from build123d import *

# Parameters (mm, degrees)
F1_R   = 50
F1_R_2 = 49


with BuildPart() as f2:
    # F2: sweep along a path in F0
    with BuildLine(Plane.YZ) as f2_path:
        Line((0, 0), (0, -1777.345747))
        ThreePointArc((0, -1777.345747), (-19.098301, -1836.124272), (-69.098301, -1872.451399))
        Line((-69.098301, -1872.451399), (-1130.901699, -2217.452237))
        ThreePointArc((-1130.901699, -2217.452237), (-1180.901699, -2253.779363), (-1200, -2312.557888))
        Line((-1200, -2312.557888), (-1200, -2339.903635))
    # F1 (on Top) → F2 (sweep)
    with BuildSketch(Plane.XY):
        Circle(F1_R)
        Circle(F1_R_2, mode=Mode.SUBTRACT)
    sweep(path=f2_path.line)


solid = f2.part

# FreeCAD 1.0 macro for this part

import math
import FreeCAD as App
import Part
import Sketcher
Q = App.Units.Quantity

doc = App.newDocument("Part")
body = doc.addObject("PartDesign::Body", "Body")

# Sketch on XY plane
sketch1 = body.newObject("Sketcher::SketchObject", "Sketch")
sketch1.AttachmentSupport = (doc.getObject("XY_Plane"), [""])
sketch1.MapMode = "FlatFace"
sketch1.addGeometry([
    Part.Circle(App.Vector(0, 0, 0), App.Vector(0, 0, 1), 50),
    Part.Circle(App.Vector(0, 0, 0), App.Vector(0, 0, 1), 49),
], False)
sketch1.addConstraint([
    Sketcher.Constraint("Coincident", 0, 3, -1, 1),
    Sketcher.Constraint("Coincident", 1, 3, -1, 1),
    Sketcher.Constraint("Diameter", 0, 100.0),
    Sketcher.Constraint("Diameter", 1, 98.0),
])

# Sketch on YZ plane
sketch2 = body.newObject("Sketcher::SketchObject", "Sketch001")
sketch2.AttachmentSupport = (doc.getObject("YZ_Plane"), [""])
sketch2.MapMode = "FlatFace"
sketch2.addGeometry([
    Part.LineSegment(App.Vector(0, 0, 0), App.Vector(0, -1777.345747, 0)),  # 0
    Part.ArcOfCircle(Part.Circle(App.Vector(-100.000003, -1777.345745, 0), App.Vector(0, 0, 1), 100.000003), math.radians(-71.999999), math.radians(-0.000001)),  # 1
    Part.LineSegment(App.Vector(-69.098301, -1872.451399, 0), App.Vector(-1130.901699, -2217.452237, 0)),  # 2
    Part.ArcOfCircle(Part.Circle(App.Vector(-1100, -2312.557889, 0), App.Vector(0, 0, 1), 100), math.radians(108), math.radians(179.999999)),  # 3
    Part.LineSegment(App.Vector(-1200, -2312.557888, 0), App.Vector(-1200, -2339.903635, 0)),  # 4
], False)
sketch2.addConstraint([
    Sketcher.Constraint("Tangent", 0, 2, 1, 2),
    Sketcher.Constraint("Tangent", 1, 1, 2, 1),
    Sketcher.Constraint("Tangent", 2, 2, 3, 1),
    Sketcher.Constraint("Tangent", 3, 2, 4, 1),
    Sketcher.Constraint("Vertical", 0),
    Sketcher.Constraint("Vertical", 4),
    Sketcher.Constraint("Coincident", 0, 1, -1, 1),
    Sketcher.Constraint("Radius", 3, 100.0),
    Sketcher.Constraint("Angle", 2, Q("-162 deg")),
    Sketcher.Constraint("DistanceX", 3, 3, -1, 1, 1100.0),
    Sketcher.Constraint("Radius", 1, 100.000003),
    Sketcher.Constraint("DistanceY", 1, 1, -1, 1, 1872.451399),
    Sketcher.Constraint("DistanceY", 4, 2, 2, 2, 122.451398),
])
doc.recompute()

additivepipe = body.newObject("PartDesign::AdditivePipe", "AdditivePipe")
additivepipe.Profile = sketch1
additivepipe.Spine = (sketch2, ["Edge1", "Edge2", "Edge3", "Edge4", "Edge5"])

doc.recompute()
